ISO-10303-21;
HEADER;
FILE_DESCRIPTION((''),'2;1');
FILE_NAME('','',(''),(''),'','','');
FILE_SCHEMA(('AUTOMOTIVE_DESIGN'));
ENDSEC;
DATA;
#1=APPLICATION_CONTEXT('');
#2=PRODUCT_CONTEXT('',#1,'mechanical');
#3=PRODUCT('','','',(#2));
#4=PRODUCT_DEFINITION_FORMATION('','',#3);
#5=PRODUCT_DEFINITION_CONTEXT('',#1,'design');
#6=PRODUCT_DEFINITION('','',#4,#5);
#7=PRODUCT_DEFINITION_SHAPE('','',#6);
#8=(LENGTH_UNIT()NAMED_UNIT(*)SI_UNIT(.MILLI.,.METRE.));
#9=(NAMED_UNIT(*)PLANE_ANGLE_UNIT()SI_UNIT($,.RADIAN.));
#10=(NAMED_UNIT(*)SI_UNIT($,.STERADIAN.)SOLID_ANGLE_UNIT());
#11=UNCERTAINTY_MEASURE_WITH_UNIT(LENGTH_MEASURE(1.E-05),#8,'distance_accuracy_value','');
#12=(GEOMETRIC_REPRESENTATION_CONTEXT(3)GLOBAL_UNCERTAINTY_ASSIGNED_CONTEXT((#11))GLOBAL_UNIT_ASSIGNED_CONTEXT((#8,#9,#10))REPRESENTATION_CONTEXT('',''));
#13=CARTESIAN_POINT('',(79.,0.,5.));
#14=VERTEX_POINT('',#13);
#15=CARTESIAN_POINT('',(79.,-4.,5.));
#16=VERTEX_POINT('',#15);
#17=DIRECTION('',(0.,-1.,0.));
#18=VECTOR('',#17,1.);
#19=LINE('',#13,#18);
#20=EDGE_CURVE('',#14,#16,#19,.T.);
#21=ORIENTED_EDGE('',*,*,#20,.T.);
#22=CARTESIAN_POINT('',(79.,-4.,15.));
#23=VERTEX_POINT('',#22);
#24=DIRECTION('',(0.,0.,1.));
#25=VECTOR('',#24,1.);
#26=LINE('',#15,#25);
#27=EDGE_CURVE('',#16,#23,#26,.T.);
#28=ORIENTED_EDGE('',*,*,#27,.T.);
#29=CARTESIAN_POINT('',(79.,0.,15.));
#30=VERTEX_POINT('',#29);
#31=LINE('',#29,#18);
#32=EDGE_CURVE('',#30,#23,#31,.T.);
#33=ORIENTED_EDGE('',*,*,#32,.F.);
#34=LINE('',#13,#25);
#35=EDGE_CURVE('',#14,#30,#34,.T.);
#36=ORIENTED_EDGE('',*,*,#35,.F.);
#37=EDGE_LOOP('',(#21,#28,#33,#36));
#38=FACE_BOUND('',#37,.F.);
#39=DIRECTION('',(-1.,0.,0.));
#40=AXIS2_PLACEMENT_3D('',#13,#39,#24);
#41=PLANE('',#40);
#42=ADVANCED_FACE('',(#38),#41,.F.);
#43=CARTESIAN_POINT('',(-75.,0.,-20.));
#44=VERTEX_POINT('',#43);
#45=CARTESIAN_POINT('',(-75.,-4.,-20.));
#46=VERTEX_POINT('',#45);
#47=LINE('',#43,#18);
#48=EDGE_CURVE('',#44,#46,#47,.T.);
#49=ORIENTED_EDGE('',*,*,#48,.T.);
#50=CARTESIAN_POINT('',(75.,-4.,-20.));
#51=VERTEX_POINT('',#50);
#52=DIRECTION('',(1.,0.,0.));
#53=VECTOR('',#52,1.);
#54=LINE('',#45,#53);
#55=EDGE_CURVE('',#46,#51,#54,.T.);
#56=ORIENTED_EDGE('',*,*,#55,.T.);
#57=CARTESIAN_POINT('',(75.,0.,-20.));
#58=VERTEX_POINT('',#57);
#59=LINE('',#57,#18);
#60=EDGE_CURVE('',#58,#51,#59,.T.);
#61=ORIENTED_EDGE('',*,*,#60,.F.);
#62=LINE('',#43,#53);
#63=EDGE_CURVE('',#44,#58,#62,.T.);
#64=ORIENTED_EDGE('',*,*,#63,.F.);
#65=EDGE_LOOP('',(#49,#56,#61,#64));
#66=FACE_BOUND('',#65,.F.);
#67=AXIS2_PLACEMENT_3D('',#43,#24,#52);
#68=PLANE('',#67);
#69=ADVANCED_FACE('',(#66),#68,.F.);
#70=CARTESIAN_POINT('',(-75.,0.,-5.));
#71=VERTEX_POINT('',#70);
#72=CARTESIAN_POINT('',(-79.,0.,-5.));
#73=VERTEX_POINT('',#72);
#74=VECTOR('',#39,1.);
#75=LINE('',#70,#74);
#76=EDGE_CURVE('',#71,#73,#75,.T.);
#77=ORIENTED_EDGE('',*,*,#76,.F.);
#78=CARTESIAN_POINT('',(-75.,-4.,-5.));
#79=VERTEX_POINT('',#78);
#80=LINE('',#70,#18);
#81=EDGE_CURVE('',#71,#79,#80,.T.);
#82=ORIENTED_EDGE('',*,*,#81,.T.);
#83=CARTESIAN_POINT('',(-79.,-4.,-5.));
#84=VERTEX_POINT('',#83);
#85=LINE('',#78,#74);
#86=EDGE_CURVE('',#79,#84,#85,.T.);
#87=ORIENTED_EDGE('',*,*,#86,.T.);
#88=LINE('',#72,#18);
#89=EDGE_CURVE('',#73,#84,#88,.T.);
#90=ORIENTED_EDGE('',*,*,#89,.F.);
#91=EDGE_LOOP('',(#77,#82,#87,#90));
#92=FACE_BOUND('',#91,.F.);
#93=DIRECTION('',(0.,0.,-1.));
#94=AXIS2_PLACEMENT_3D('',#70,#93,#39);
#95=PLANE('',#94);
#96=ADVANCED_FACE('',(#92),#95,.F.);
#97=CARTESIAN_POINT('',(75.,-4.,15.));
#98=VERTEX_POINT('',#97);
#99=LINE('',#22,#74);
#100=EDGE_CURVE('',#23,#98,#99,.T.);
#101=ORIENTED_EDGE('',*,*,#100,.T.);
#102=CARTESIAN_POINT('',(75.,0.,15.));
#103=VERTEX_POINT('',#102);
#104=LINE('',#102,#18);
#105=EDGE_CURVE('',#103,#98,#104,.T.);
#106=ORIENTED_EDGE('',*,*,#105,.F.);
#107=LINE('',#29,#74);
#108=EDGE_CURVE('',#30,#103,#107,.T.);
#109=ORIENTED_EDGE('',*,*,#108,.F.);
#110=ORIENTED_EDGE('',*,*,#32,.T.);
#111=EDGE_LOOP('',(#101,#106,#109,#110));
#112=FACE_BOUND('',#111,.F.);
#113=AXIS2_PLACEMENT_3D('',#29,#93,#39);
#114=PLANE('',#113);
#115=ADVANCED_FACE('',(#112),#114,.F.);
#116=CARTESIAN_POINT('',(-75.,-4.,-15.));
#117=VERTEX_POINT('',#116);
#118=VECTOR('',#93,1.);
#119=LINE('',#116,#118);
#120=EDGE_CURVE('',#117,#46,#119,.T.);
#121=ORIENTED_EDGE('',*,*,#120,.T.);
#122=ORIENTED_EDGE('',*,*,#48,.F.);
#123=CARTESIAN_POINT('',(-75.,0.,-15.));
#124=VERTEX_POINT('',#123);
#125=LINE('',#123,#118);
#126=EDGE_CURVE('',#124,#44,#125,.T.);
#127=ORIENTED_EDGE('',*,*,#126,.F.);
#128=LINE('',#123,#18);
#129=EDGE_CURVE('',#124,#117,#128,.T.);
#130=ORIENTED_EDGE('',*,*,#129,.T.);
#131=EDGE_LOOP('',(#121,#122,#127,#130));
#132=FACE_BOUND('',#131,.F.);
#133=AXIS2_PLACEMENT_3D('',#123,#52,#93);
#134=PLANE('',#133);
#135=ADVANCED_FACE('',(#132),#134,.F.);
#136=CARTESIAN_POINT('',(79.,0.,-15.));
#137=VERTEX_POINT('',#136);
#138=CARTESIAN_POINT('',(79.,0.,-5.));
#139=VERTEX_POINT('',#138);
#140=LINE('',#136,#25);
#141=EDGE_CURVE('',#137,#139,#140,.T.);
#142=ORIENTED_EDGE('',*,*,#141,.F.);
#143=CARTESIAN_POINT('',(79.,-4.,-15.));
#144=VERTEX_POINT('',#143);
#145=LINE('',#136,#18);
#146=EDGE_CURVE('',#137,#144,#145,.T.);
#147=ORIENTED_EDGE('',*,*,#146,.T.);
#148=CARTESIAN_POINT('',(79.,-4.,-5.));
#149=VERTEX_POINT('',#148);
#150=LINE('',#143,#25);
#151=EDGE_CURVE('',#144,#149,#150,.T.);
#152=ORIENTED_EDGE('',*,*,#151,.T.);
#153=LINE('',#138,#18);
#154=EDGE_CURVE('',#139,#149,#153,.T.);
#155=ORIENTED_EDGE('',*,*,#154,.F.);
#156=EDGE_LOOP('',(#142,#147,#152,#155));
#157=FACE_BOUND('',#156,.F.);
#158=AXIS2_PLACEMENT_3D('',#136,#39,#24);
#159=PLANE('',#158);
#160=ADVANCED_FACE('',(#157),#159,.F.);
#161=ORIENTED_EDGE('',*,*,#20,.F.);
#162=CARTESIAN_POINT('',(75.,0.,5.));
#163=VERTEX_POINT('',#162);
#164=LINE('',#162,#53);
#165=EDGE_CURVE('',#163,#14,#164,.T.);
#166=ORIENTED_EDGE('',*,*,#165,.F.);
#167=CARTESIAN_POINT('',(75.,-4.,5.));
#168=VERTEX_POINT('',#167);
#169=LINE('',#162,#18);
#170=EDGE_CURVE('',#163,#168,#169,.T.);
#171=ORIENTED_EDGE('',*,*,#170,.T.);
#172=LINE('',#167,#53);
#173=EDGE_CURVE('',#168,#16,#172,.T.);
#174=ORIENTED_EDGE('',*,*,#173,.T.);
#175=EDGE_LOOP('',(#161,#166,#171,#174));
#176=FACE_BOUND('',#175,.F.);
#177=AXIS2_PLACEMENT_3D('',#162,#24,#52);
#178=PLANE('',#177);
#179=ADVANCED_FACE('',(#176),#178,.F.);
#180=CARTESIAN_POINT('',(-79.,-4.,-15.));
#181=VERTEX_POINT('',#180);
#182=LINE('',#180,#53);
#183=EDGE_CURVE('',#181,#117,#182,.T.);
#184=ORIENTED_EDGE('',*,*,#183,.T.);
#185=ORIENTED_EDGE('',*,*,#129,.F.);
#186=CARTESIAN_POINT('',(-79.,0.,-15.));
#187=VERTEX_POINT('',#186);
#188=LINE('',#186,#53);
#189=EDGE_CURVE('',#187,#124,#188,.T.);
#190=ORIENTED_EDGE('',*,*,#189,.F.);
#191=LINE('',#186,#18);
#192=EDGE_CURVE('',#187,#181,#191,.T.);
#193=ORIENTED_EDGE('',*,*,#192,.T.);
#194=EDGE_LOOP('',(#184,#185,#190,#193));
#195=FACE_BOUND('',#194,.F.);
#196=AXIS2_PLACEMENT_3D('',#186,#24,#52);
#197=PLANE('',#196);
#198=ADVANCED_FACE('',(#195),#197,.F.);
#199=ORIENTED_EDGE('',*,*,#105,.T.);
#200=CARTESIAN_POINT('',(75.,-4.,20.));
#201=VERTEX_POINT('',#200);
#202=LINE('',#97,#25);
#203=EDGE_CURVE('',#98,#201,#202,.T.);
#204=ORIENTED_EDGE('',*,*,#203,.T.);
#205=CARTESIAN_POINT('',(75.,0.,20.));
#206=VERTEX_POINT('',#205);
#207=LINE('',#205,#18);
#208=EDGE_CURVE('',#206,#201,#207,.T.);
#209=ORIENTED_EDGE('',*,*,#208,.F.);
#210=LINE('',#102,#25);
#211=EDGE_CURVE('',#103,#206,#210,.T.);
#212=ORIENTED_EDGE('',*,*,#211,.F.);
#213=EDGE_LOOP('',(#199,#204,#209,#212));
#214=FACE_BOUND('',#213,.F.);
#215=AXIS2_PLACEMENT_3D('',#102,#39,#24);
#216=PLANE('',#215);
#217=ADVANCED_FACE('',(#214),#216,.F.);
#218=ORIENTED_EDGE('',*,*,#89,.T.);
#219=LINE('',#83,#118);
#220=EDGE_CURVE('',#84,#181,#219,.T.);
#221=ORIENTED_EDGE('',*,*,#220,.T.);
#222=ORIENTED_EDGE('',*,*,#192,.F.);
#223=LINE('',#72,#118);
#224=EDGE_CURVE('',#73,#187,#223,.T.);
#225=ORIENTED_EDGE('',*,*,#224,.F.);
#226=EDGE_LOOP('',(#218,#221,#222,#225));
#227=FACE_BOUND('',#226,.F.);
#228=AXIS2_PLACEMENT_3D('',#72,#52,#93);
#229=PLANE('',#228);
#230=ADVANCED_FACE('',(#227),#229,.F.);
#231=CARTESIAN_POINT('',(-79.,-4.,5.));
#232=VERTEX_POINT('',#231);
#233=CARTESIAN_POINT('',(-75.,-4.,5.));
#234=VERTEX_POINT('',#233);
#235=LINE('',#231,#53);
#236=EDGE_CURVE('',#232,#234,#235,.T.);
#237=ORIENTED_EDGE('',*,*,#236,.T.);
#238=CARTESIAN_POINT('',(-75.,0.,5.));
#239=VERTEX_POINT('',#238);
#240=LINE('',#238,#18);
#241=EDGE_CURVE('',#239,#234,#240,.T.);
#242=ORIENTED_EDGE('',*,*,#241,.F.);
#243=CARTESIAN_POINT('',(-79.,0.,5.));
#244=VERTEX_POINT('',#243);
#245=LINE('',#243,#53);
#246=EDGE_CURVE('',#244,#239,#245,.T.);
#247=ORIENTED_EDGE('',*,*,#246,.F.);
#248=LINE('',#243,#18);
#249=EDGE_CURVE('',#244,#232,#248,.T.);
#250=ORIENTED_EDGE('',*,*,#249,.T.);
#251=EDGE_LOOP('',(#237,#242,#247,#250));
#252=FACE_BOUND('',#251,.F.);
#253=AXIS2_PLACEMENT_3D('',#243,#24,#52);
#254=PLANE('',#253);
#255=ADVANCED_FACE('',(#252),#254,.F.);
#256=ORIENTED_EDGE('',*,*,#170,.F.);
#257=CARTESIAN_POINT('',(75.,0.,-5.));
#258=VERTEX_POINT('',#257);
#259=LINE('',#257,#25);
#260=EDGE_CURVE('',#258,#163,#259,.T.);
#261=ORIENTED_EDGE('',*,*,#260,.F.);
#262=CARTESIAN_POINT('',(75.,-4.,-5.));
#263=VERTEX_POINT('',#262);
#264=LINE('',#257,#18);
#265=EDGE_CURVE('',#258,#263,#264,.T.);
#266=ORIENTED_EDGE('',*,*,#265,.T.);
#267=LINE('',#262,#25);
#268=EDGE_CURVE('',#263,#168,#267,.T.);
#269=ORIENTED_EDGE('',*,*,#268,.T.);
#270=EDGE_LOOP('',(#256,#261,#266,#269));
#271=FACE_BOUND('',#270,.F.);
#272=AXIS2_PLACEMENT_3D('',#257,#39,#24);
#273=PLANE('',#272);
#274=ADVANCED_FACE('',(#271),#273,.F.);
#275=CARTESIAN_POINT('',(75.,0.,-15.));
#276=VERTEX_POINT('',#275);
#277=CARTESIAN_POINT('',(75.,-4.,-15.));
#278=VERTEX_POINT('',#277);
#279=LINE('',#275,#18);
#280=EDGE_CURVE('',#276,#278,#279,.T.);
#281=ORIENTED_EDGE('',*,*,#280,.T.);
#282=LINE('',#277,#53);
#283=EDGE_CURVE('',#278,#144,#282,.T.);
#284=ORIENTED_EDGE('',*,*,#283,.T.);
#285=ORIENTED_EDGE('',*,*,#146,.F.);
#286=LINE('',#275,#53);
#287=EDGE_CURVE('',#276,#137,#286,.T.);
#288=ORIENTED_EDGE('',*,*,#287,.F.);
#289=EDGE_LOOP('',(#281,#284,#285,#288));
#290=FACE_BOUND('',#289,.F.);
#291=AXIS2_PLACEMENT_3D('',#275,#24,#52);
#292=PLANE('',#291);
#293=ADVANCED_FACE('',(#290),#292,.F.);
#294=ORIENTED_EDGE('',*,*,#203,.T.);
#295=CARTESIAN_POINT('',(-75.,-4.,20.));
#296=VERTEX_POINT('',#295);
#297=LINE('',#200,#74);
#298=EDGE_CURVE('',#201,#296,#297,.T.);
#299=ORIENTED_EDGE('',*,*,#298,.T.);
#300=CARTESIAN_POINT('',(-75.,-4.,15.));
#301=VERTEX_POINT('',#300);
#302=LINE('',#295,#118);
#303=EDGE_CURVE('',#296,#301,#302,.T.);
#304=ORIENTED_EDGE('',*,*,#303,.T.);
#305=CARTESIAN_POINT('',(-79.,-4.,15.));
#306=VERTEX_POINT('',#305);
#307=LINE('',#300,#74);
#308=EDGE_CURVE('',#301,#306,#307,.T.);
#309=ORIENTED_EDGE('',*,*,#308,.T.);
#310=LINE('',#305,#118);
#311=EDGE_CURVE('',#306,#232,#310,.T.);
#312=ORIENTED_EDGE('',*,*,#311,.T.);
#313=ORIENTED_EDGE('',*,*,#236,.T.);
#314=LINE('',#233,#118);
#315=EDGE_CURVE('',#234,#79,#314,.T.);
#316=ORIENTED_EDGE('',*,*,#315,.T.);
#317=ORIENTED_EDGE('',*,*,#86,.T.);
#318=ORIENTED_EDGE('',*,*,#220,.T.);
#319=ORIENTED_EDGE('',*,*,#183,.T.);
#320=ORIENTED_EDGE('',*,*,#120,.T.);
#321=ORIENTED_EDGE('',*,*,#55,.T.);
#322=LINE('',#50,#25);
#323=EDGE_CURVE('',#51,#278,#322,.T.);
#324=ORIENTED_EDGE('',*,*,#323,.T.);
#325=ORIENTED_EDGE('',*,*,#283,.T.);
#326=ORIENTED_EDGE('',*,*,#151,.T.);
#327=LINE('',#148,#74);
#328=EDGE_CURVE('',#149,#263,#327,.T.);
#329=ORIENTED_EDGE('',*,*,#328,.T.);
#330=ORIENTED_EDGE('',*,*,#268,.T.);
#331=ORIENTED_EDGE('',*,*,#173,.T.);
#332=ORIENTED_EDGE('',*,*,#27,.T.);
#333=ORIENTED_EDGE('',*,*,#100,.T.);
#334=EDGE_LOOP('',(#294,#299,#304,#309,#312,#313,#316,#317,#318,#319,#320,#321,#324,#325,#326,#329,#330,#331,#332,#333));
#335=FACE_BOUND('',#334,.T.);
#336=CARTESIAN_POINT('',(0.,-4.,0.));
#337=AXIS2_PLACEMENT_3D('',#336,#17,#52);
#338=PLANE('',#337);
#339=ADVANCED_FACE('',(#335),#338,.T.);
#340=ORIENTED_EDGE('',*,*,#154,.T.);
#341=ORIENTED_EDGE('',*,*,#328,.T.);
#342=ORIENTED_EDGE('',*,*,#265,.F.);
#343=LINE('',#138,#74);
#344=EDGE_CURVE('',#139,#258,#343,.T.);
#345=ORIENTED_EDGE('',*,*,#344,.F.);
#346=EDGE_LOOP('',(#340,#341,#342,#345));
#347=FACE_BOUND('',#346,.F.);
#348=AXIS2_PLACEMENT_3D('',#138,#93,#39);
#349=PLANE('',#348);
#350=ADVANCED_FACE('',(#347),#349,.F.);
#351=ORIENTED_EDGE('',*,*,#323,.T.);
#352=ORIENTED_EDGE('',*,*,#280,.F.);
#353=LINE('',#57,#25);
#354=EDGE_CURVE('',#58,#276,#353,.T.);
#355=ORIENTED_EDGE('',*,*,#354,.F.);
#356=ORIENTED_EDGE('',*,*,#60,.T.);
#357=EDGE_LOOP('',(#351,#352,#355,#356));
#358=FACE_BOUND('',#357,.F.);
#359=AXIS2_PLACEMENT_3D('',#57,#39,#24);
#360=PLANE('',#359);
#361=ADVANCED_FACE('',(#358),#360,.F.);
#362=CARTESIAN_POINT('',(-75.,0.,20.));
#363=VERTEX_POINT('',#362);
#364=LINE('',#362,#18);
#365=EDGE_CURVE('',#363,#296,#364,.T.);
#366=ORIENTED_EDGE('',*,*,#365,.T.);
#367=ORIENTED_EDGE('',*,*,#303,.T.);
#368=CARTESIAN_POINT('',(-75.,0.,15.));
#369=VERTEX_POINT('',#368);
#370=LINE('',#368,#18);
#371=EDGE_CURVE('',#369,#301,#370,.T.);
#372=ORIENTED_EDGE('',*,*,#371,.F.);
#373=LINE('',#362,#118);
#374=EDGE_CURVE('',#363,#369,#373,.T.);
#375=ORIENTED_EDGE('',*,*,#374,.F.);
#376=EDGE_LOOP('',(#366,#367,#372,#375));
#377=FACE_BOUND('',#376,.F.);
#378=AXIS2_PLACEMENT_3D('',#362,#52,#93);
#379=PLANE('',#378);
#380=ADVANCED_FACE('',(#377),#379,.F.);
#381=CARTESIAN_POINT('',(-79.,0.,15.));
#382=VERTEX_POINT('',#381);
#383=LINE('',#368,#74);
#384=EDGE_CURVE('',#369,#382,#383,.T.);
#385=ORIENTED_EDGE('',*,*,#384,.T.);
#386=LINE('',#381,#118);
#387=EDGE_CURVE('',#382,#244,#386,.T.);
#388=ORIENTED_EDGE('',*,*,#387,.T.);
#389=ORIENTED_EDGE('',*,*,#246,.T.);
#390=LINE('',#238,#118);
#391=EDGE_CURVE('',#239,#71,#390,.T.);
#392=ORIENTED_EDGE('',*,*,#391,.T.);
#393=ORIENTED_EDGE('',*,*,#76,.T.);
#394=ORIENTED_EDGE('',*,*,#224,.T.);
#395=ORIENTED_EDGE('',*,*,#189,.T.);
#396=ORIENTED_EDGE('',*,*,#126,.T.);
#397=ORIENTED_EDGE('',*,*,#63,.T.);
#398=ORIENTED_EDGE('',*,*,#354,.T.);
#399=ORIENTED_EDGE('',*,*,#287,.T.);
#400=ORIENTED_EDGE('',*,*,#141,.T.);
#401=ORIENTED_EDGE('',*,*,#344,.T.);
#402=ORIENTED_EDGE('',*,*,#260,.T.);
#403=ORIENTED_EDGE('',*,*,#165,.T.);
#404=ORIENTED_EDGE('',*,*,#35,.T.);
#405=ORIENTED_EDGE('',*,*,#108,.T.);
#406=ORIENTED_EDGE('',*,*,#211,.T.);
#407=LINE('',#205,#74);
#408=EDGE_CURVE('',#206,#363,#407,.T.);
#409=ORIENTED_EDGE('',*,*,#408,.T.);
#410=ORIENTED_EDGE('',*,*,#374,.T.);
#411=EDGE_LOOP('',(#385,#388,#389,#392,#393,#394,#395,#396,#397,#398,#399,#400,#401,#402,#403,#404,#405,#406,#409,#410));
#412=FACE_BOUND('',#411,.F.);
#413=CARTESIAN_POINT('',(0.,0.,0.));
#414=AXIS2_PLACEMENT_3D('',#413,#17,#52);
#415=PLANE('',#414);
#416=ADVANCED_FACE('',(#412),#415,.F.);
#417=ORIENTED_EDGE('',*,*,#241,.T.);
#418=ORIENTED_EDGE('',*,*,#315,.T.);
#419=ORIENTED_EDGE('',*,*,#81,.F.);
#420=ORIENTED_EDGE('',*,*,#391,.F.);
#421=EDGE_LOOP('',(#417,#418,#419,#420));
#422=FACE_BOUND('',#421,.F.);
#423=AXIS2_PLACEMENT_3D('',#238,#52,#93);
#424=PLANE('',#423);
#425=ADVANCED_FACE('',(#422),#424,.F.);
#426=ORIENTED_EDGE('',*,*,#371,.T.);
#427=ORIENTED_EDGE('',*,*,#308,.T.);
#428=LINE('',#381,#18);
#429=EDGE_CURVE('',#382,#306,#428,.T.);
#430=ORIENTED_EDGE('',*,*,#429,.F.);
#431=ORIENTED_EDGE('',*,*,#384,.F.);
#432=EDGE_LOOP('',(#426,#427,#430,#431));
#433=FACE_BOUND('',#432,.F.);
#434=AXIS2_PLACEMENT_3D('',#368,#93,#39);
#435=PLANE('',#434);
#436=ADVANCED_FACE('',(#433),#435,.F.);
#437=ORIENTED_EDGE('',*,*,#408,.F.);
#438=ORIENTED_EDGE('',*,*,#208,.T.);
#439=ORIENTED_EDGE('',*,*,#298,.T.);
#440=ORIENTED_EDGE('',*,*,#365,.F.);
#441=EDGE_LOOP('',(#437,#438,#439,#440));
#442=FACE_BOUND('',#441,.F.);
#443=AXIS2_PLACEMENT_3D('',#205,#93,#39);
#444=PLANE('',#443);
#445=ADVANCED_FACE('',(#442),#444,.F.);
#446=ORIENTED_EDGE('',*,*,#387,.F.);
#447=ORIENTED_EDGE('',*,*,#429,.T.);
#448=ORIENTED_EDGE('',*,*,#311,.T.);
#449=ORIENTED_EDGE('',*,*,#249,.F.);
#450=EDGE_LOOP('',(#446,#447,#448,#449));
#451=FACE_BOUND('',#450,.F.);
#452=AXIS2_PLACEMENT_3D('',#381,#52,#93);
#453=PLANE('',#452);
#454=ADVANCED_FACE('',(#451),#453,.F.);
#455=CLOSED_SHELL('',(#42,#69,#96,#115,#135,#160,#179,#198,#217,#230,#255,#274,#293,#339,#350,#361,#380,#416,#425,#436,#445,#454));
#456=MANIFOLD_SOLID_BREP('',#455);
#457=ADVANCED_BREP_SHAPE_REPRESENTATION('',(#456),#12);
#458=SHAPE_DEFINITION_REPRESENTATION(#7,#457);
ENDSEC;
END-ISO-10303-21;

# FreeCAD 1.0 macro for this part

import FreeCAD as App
import Part
import Sketcher
from FreeCAD import Vector
Q = App.Units.Quantity

doc = App.newDocument("Part")
body = doc.addObject("PartDesign::Body", "Body")

sketch1 = body.newObject("Sketcher::SketchObject", "Sketch")
sketch1.AttachmentSupport = (doc.getObject("XZ_Plane"), [""])
sketch1.MapMode = "FlatFace"
sketch1.addGeometry(Part.LineSegment(Vector(75, 15, 0), Vector(75, 20, 0)), False)
sketch1.addGeometry(Part.LineSegment(Vector(75, 20, 0), Vector(-75, 20, 0)), False)
sketch1.addGeometry(Part.LineSegment(Vector(-75, 20, 0), Vector(-75, 15, 0)), False)
sketch1.addGeometry(Part.LineSegment(Vector(-75, 15, 0), Vector(-79, 15, 0)), False)
sketch1.addGeometry(Part.LineSegment(Vector(-79, 15, 0), Vector(-79, 5, 0)), False)
sketch1.addGeometry(Part.LineSegment(Vector(-79, 5, 0), Vector(-75, 5, 0)), False)
sketch1.addGeometry(Part.LineSegment(Vector(-75, 5, 0), Vector(-75, -5, 0)), False)
sketch1.addGeometry(Part.LineSegment(Vector(-75, -5, 0), Vector(-79, -5, 0)), False)
sketch1.addGeometry(Part.LineSegment(Vector(-79, -5, 0), Vector(-79, -15, 0)), False)
sketch1.addGeometry(Part.LineSegment(Vector(-79, -15, 0), Vector(-75, -15, 0)), False)
sketch1.addGeometry(Part.LineSegment(Vector(-75, -15, 0), Vector(-75, -20, 0)), False)
sketch1.addGeometry(Part.LineSegment(Vector(-75, -20, 0), Vector(75, -20, 0)), False)
sketch1.addGeometry(Part.LineSegment(Vector(75, -20, 0), Vector(75, -15, 0)), False)
sketch1.addGeometry(Part.LineSegment(Vector(75, -15, 0), Vector(79, -15, 0)), False)
sketch1.addGeometry(Part.LineSegment(Vector(79, -15, 0), Vector(79, -5, 0)), False)
sketch1.addGeometry(Part.LineSegment(Vector(79, -5, 0), Vector(75, -5, 0)), False)
sketch1.addGeometry(Part.LineSegment(Vector(75, -5, 0), Vector(75, 5, 0)), False)
sketch1.addGeometry(Part.LineSegment(Vector(75, 5, 0), Vector(79, 5, 0)), False)
sketch1.addGeometry(Part.LineSegment(Vector(79, 5, 0), Vector(79, 15, 0)), False)
sketch1.addGeometry(Part.LineSegment(Vector(79, 15, 0), Vector(75, 15, 0)), False)
sketch1.addConstraint(Sketcher.Constraint("Coincident", 0, 2, 1, 1))
sketch1.addConstraint(Sketcher.Constraint("Coincident", 1, 2, 2, 1))
sketch1.addConstraint(Sketcher.Constraint("Coincident", 2, 2, 3, 1))
sketch1.addConstraint(Sketcher.Constraint("Coincident", 3, 2, 4, 1))
sketch1.addConstraint(Sketcher.Constraint("Coincident", 4, 2, 5, 1))
sketch1.addConstraint(Sketcher.Constraint("Coincident", 5, 2, 6, 1))
sketch1.addConstraint(Sketcher.Constraint("Coincident", 6, 2, 7, 1))
sketch1.addConstraint(Sketcher.Constraint("Coincident", 7, 2, 8, 1))
sketch1.addConstraint(Sketcher.Constraint("Coincident", 8, 2, 9, 1))
sketch1.addConstraint(Sketcher.Constraint("Coincident", 9, 2, 10, 1))
sketch1.addConstraint(Sketcher.Constraint("Coincident", 10, 2, 11, 1))
sketch1.addConstraint(Sketcher.Constraint("Coincident", 11, 2, 12, 1))
sketch1.addConstraint(Sketcher.Constraint("Coincident", 12, 2, 13, 1))
sketch1.addConstraint(Sketcher.Constraint("Coincident", 13, 2, 14, 1))
sketch1.addConstraint(Sketcher.Constraint("Coincident", 14, 2, 15, 1))
sketch1.addConstraint(Sketcher.Constraint("Coincident", 15, 2, 16, 1))
sketch1.addConstraint(Sketcher.Constraint("Coincident", 16, 2, 17, 1))
sketch1.addConstraint(Sketcher.Constraint("Coincident", 17, 2, 18, 1))
sketch1.addConstraint(Sketcher.Constraint("Coincident", 18, 2, 19, 1))
sketch1.addConstraint(Sketcher.Constraint("Coincident", 19, 2, 0, 1))
sketch1.addConstraint(Sketcher.Constraint("Vertical", 0))
sketch1.addConstraint(Sketcher.Constraint("Horizontal", 1))
sketch1.addConstraint(Sketcher.Constraint("Vertical", 2))
sketch1.addConstraint(Sketcher.Constraint("Horizontal", 3))
sketch1.addConstraint(Sketcher.Constraint("Vertical", 4))
sketch1.addConstraint(Sketcher.Constraint("Horizontal", 5))
sketch1.addConstraint(Sketcher.Constraint("Vertical", 6))
sketch1.addConstraint(Sketcher.Constraint("Horizontal", 7))
sketch1.addConstraint(Sketcher.Constraint("Vertical", 8))
sketch1.addConstraint(Sketcher.Constraint("Horizontal", 9))
sketch1.addConstraint(Sketcher.Constraint("Vertical", 10))
sketch1.addConstraint(Sketcher.Constraint("Horizontal", 11))
sketch1.addConstraint(Sketcher.Constraint("Vertical", 12))
sketch1.addConstraint(Sketcher.Constraint("Horizontal", 13))
sketch1.addConstraint(Sketcher.Constraint("Vertical", 14))
sketch1.addConstraint(Sketcher.Constraint("Horizontal", 15))
sketch1.addConstraint(Sketcher.Constraint("Vertical", 16))
sketch1.addConstraint(Sketcher.Constraint("Horizontal", 17))
sketch1.addConstraint(Sketcher.Constraint("Vertical", 18))
sketch1.addConstraint(Sketcher.Constraint("Horizontal", 19))
sketch1.addConstraint(Sketcher.Constraint("Symmetric", 0, 2, 10, 2, -1, 1))
sketch1.addConstraint(Sketcher.Constraint("Symmetric", 2, 2, 12, 2, -1, 1))
sketch1.addConstraint(Sketcher.Constraint("Symmetric", 4, 2, 14, 2, -1, 1))
sketch1.addConstraint(Sketcher.Constraint("Symmetric", 6, 2, 16, 2, -1, 1))
sketch1.addConstraint(Sketcher.Constraint("Symmetric", 8, 2, 18, 2, -1, 1))
sketch1.addConstraint(Sketcher.Constraint("Symmetric", 9, 2, 12, 2, -2))
sketch1.addConstraint(Sketcher.Constraint("Symmetric", 7, 2, 14, 2, -2))
sketch1.addConstraint(Sketcher.Constraint("Vertical", 2, 2, 5, 2))
sketch1.addConstraint(Sketcher.Constraint("Equal", 4, 6))
sketch1.addConstraint(Sketcher.Constraint("DistanceX", 1, 2, 1, 1, Q("150 mm")))
sketch1.addConstraint(Sketcher.Constraint("DistanceX", 3, 2, 3, 1, Q("4 mm")))
sketch1.addConstraint(Sketcher.Constraint("DistanceY", 0, 1, 0, 2, Q("5 mm")))
sketch1.addConstraint(Sketcher.Constraint("DistanceY", 4, 2, 4, 1, Q("10 mm")))
pad1 = body.newObject("PartDesign::Pad", "Pad")
pad1.Profile = sketch1
pad1.Length = 4

doc.recompute()
